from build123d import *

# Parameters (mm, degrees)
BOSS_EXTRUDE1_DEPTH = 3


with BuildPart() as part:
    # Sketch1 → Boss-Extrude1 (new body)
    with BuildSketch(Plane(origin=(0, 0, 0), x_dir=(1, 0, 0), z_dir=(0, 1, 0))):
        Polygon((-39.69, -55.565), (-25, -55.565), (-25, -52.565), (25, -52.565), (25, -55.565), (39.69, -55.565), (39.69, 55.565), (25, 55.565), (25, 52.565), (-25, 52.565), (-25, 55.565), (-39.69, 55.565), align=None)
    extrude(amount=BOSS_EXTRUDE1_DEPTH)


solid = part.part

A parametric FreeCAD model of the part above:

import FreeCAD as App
import Part
import Sketcher
from FreeCAD import Vector


def add_polygon(sketch, points):
    """Adds a closed chain of lines whose ends are joined by coincident constraints."""
    first, n = sketch.GeometryCount, len(points)
    for a, b in zip(points, points[1:] + points[:1]):
        sketch.addGeometry(Part.LineSegment(App.Vector(*a, 0), App.Vector(*b, 0)), False)
    for i in range(n):
        sketch.addConstraint(Sketcher.Constraint("Coincident", first + i, 2, first + (i + 1) % n, 1))

doc = App.newDocument("Part")
params = doc.addObject("Spreadsheet::Sheet", "Params")
for row, (alias, value) in enumerate([
    ("sketch1_width", "50 mm"),
    ("sketch1_height", "3 mm"),
    ("sketch1_width2", "14.69 mm"),
    ("sketch1_height2", "111.13 mm"),
    ("pad1_length", "3 mm"),
], start=1):
    params.set(f"A{row}", alias)
    params.set(f"B{row}", "=" + value)
    params.setAlias(f"B{row}", alias)

body = doc.addObject("PartDesign::Body", "Body")

sketch1 = doc.addObject("Sketcher::SketchObject", "Sketch")
body.addObject(sketch1)
sketch1.AttachmentSupport = (doc.XZ_Plane, [""])
sketch1.MapMode = "FlatFace"
add_polygon(sketch1, [(-39.69, 55.565), (-25, 55.565), (-25, 52.565), (25, 52.565), (25, 55.565), (39.69, 55.565), (39.69, -55.565), (25, -55.565), (25, -52.565), (-25, -52.565), (-25, -55.565), (-39.69, -55.565)])
sketch1.addConstraint([
    Sketcher.Constraint("Horizontal", 0),
    Sketcher.Constraint("Vertical", 1),
    Sketcher.Constraint("Horizontal", 2),
    Sketcher.Constraint("Vertical", 3),
    Sketcher.Constraint("Horizontal", 4),
    Sketcher.Constraint("Vertical", 5),
    Sketcher.Constraint("Horizontal", 6),
    Sketcher.Constraint("Vertical", 7),
    Sketcher.Constraint("Horizontal", 8),
    Sketcher.Constraint("Vertical", 9),
    Sketcher.Constraint("Horizontal", 10),
    Sketcher.Constraint("Vertical", 11),
    Sketcher.Constraint("Symmetric", 0, 2, 6, 2, -1, 1),
    Sketcher.Constraint("Symmetric", 2, 2, 8, 2, -1, 1),
    Sketcher.Constraint("Symmetric", 4, 2, 10, 2, -1, 1),
    Sketcher.Constraint("Symmetric", 0, 2, 3, 2, -2),
    Sketcher.Constraint("DistanceX", 2, 1, 2, 2, 50.0),
    Sketcher.Constraint("DistanceY", 1, 2, 1, 1, 3.0),
    Sketcher.Constraint("DistanceX", 0, 1, 0, 2, 14.69),
    Sketcher.Constraint("DistanceY", 5, 2, 5, 1, 111.13),
])
sketch1.setExpression("Constraints[28]", "Params.sketch1_width")
sketch1.setExpression("Constraints[29]", "Params.sketch1_height")
sketch1.setExpression("Constraints[30]", "Params.sketch1_width2")
sketch1.setExpression("Constraints[31]", "Params.sketch1_height2")
pad1 = doc.addObject("PartDesign::Pad", "Pad")
body.addObject(pad1)
pad1.Profile = sketch1
pad1.setExpression("Length", "Params.pad1_length")
pad1.Reversed = True

doc.recompute()
